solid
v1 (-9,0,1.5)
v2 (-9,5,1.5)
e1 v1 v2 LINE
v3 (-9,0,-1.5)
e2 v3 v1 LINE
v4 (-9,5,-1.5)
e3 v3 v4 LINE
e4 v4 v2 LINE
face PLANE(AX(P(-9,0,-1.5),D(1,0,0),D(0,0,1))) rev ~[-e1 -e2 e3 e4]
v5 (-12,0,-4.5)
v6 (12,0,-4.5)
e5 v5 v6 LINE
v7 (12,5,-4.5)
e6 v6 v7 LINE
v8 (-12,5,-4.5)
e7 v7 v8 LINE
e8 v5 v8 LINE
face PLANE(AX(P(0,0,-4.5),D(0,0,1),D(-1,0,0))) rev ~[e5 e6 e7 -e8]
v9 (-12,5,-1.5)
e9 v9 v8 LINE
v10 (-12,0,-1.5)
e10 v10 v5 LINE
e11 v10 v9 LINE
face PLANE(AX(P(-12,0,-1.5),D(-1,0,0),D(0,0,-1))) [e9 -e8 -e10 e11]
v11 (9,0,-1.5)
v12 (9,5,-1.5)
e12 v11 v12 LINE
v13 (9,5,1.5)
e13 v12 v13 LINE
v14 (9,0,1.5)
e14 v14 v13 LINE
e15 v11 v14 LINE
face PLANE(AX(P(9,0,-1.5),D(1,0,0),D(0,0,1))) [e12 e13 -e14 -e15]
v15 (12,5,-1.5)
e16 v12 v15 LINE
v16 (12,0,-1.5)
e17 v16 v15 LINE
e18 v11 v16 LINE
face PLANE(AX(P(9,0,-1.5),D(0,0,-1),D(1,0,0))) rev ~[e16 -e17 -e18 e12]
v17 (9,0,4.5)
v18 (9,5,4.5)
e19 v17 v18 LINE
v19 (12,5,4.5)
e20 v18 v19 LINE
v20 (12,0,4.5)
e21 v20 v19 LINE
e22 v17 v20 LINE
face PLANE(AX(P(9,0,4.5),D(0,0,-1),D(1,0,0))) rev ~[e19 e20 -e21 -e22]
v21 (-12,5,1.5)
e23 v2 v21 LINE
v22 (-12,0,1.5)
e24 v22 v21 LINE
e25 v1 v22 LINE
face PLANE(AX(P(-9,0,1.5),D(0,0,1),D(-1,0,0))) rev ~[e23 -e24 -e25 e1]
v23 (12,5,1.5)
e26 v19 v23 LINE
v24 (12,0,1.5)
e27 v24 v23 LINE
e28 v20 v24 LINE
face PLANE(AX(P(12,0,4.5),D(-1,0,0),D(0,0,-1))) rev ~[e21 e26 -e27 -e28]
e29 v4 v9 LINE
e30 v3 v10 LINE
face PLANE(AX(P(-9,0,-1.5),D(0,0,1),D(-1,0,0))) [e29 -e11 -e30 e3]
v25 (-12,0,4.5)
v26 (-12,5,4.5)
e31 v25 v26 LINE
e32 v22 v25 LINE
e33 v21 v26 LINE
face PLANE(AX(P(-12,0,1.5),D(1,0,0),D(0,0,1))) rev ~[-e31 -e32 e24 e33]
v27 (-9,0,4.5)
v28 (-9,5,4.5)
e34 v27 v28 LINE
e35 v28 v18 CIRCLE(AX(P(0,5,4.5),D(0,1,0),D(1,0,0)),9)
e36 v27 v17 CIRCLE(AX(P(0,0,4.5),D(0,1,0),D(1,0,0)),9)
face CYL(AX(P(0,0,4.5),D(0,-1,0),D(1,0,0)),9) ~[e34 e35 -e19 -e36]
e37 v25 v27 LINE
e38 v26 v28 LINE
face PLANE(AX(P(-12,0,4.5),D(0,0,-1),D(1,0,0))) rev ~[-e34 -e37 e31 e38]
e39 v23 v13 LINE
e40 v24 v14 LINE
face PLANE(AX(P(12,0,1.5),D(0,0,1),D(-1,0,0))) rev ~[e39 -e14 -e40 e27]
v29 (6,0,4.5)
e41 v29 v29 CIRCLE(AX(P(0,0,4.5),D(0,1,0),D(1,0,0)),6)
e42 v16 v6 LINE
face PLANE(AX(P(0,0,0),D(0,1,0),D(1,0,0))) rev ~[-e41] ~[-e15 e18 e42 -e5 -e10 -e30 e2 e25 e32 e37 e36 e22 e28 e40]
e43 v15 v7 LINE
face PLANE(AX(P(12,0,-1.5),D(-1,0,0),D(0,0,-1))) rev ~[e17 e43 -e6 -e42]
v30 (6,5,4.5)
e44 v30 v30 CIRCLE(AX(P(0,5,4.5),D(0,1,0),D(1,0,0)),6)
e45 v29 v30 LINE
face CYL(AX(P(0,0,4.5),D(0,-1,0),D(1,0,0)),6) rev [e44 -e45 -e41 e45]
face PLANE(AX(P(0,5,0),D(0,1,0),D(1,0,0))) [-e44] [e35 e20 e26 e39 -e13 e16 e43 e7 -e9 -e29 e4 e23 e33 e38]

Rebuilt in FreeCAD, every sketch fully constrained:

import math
import FreeCAD as App
import Part
import Sketcher
Q = App.Units.Quantity

doc = App.newDocument("Part")
params = doc.addObject("Spreadsheet::Sheet", "Params")
for row, (alias, value) in enumerate([
    ("sketch1_diameter", "12 mm"),
    ("sketch1_radius", "9 mm"),
    ("sketch1_width", "3 mm"),
    ("pad1_length", "5 mm"),
], start=1):
    params.set(f"A{row}", alias)
    params.set(f"B{row}", "=" + value)
    params.setAlias(f"B{row}", alias)

body = doc.addObject("PartDesign::Body", "Body")

# Sketch on XZ plane
sketch1 = doc.addObject("Sketcher::SketchObject", "Sketch")
body.addObject(sketch1)
sketch1.AttachmentSupport = (doc.XZ_Plane, [""])
sketch1.MapMode = "FlatFace"
sketch1.addGeometry([
    Part.ArcOfCircle(Part.Circle(App.Vector(0, 4.5, 0), App.Vector(0, 0, 1), 9), math.radians(0), math.radians(180)),  # 0
    Part.LineSegment(App.Vector(9, 4.5, 0), App.Vector(12, 4.5, 0)),  # 1
    Part.LineSegment(App.Vector(12, 4.5, 0), App.Vector(12, 1.5, 0)),  # 2
    Part.LineSegment(App.Vector(12, 1.5, 0), App.Vector(9, 1.5, 0)),  # 3
    Part.LineSegment(App.Vector(9, 1.5, 0), App.Vector(9, -1.5, 0)),  # 4
    Part.LineSegment(App.Vector(9, -1.5, 0), App.Vector(12, -1.5, 0)),  # 5
    Part.LineSegment(App.Vector(12, -1.5, 0), App.Vector(12, -4.5, 0)),  # 6
    Part.LineSegment(App.Vector(12, -4.5, 0), App.Vector(-12, -4.5, 0)),  # 7
    Part.LineSegment(App.Vector(-12, -4.5, 0), App.Vector(-12, -1.5, 0)),  # 8
    Part.LineSegment(App.Vector(-12, -1.5, 0), App.Vector(-9, -1.5, 0)),  # 9
    Part.LineSegment(App.Vector(-9, -1.5, 0), App.Vector(-9, 1.5, 0)),  # 10
    Part.LineSegment(App.Vector(-9, 1.5, 0), App.Vector(-12, 1.5, 0)),  # 11
    Part.LineSegment(App.Vector(-12, 1.5, 0), App.Vector(-12, 4.5, 0)),  # 12
    Part.LineSegment(App.Vector(-12, 4.5, 0), App.Vector(-9, 4.5, 0)),  # 13
    Part.Circle(App.Vector(0, 4.5, 0), App.Vector(0, 0, 1), 6),  # 14
], False)
sketch1.addConstraint([
    Sketcher.Constraint("Coincident", 0, 1, 1, 1),
    Sketcher.Constraint("Coincident", 1, 2, 2, 1),
    Sketcher.Constraint("Coincident", 2, 2, 3, 1),
    Sketcher.Constraint("Coincident", 3, 2, 4, 1),
    Sketcher.Constraint("Coincident", 4, 2, 5, 1),
    Sketcher.Constraint("Coincident", 5, 2, 6, 1),
    Sketcher.Constraint("Coincident", 6, 2, 7, 1),
    Sketcher.Constraint("Coincident", 7, 2, 8, 1),
    Sketcher.Constraint("Coincident", 8, 2, 9, 1),
    Sketcher.Constraint("Coincident", 9, 2, 10, 1),
    Sketcher.Constraint("Coincident", 10, 2, 11, 1),
    Sketcher.Constraint("Coincident", 11, 2, 12, 1),
    Sketcher.Constraint("Coincident", 12, 2, 13, 1),
    Sketcher.Constraint("Coincident", 13, 2, 0, 2),
    Sketcher.Constraint("Horizontal", 1),
    Sketcher.Constraint("Vertical", 2),
    Sketcher.Constraint("Horizontal", 3),
    Sketcher.Constraint("Vertical", 4),
    Sketcher.Constraint("Horizontal", 5),
    Sketcher.Constraint("Vertical", 6),
    Sketcher.Constraint("Horizontal", 7),
    Sketcher.Constraint("Vertical", 8),
    Sketcher.Constraint("Horizontal", 9),
    Sketcher.Constraint("Vertical", 10),
    Sketcher.Constraint("Horizontal", 11),
    Sketcher.Constraint("Vertical", 12),
    Sketcher.Constraint("Horizontal", 13),
    Sketcher.Constraint("Coincident", 14, 3, 0, 3),
    Sketcher.Constraint("Symmetric", 1, 2, 7, 2, -1, 1),
    Sketcher.Constraint("Symmetric", 3, 2, 9, 2, -1, 1),
    Sketcher.Constraint("Symmetric", 5, 2, 11, 2, -1, 1),
    Sketcher.Constraint("Symmetric", 5, 2, 8, 2, -2),
    Sketcher.Constraint("Symmetric", 0, 1, 13, 2, -2),
    Sketcher.Constraint("Horizontal", 14, 3, 0, 1),
    Sketcher.Constraint("Vertical", 0, 1, 3, 2),
    Sketcher.Constraint("Equal", 13, 2),
    Sketcher.Constraint("Equal", 2, 4),
    Sketcher.Constraint("Diameter", 14, Q("12 mm")),
    Sketcher.Constraint("Radius", 0, Q("9 mm")),
    Sketcher.Constraint("DistanceX", 1, 1, 1, 2, Q("3 mm")),
])
sketch1.setExpression("Constraints[37]", "Params.sketch1_diameter")
sketch1.setExpression("Constraints[38]", "Params.sketch1_radius")
sketch1.setExpression("Constraints[39]", "Params.sketch1_width")
pad1 = doc.addObject("PartDesign::Pad", "Pad")
body.addObject(pad1)
pad1.Profile = sketch1
pad1.setExpression("Length", "Params.pad1_length")
pad1.Reversed = True

doc.recompute()
